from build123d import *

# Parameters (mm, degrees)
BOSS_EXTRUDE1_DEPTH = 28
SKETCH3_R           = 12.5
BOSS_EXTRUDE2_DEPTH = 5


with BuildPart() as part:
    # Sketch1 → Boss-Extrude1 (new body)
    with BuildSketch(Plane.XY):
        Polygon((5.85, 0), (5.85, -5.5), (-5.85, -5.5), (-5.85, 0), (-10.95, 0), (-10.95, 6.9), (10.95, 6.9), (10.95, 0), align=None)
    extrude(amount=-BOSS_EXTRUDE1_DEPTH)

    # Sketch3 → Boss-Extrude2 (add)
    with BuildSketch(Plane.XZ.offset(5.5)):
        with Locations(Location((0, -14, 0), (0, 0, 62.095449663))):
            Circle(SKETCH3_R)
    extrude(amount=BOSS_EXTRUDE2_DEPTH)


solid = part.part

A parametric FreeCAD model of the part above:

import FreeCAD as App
import Part
import Sketcher
Q = App.Units.Quantity


def add_polygon(sketch, points):
    """Adds a closed chain of lines whose ends are joined by coincident constraints."""
    first, n = sketch.GeometryCount, len(points)
    for a, b in zip(points, points[1:] + points[:1]):
        sketch.addGeometry(Part.LineSegment(App.Vector(*a, 0), App.Vector(*b, 0)), False)
    for i in range(n):
        sketch.addConstraint(Sketcher.Constraint("Coincident", first + i, 2, first + (i + 1) % n, 1))

doc = App.newDocument("Part")
body = doc.addObject("PartDesign::Body", "Body")

sketch1 = doc.addObject("Sketcher::SketchObject", "Sketch")
body.addObject(sketch1)
sketch1.AttachmentSupport = (doc.XY_Plane, [""])
sketch1.MapMode = "FlatFace"
add_polygon(sketch1, [(6, -6), (6, 0), (11, 0), (11, 7), (-11, 7), (-11, 0), (-6, 0), (-6, -6)])
sketch1.addConstraint(Sketcher.Constraint("Vertical", 0))
sketch1.addConstraint(Sketcher.Constraint("Horizontal", 1))
sketch1.addConstraint(Sketcher.Constraint("Vertical", 2))
sketch1.addConstraint(Sketcher.Constraint("Horizontal", 3))
sketch1.addConstraint(Sketcher.Constraint("Vertical", 4))
sketch1.addConstraint(Sketcher.Constraint("Horizontal", 5))
sketch1.addConstraint(Sketcher.Constraint("Vertical", 6))
sketch1.addConstraint(Sketcher.Constraint("Horizontal", 7))
sketch1.addConstraint(Sketcher.Constraint("Symmetric", 1, 2, 4, 2, -1, 1))
sketch1.addConstraint(Sketcher.Constraint("Symmetric", 0, 2, 5, 2, -2))
sketch1.addConstraint(Sketcher.Constraint("DistanceX", 1, 1, 1, 2, Q("5.1 mm")))
sketch1.addConstraint(Sketcher.Constraint("DistanceX", 3, 2, 3, 1, Q("21.9 mm")))
sketch1.addConstraint(Sketcher.Constraint("DistanceY", 0, 1, 0, 2, Q("5.5 mm")))
sketch1.addConstraint(Sketcher.Constraint("DistanceY", 2, 1, 2, 2, Q("6.9 mm")))
pad1 = doc.addObject("PartDesign::Pad", "Pad")
body.addObject(pad1)
pad1.Profile = sketch1
pad1.Length = 28
pad1.Reversed = True

sketch2 = doc.addObject("Sketcher::SketchObject", "Sketch001")
body.addObject(sketch2)
sketch2.AttachmentSupport = (doc.XZ_Plane, [""])
sketch2.MapMode = "FlatFace"
sketch2.AttachmentOffset = App.Placement(App.Vector(0, 0, 5.5), App.Rotation())
sketch2.addGeometry(Part.Circle(App.Vector(0, -14, 0), App.Vector(0, 0, 1), 12), False)
sketch2.addConstraint(Sketcher.Constraint("PointOnObject", 0, 3, -2))
sketch2.addConstraint(Sketcher.Constraint("Diameter", 0, Q("25 mm")))
sketch2.addConstraint(Sketcher.Constraint("DistanceY", 0, 3, -1, 1, Q("14 mm")))
pad2 = doc.addObject("PartDesign::Pad", "Pad001")
body.addObject(pad2)
pad2.Profile = sketch2
pad2.Length = 5

doc.recompute()
